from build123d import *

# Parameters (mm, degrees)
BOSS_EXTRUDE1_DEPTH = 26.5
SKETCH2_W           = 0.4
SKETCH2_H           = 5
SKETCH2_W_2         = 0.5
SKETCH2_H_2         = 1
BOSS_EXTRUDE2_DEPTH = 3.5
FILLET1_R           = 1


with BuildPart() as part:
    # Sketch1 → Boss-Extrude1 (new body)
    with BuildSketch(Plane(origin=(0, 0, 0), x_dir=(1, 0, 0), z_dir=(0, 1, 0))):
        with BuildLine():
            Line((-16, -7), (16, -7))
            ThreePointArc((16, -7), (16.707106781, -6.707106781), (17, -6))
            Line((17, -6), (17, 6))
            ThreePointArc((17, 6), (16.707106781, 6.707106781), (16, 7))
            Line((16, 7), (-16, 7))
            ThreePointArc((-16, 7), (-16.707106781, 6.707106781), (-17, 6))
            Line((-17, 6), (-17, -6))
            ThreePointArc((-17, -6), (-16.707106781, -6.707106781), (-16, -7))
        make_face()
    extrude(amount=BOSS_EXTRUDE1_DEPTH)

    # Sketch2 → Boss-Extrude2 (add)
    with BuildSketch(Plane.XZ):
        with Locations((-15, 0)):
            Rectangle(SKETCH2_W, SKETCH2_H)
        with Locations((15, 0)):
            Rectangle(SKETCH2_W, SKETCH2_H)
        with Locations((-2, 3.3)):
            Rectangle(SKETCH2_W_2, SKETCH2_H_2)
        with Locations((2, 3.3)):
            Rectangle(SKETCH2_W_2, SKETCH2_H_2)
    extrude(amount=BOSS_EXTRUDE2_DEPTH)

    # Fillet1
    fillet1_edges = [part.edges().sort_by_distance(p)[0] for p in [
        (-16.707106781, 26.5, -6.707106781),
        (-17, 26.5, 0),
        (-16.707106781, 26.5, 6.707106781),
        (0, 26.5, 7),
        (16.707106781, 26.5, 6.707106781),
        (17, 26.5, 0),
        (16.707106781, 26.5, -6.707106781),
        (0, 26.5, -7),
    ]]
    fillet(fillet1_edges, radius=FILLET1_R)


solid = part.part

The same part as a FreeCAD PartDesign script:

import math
import FreeCAD as App
import Part
import Sketcher
from FreeCAD import Vector
Q = App.Units.Quantity


def edges_at(feature, points):
    """Names of the edges that pass closest to the given points."""
    edges = feature.Shape.Edges
    near = lambda p: min(range(len(edges)), key=lambda i: edges[i].distToShape(Part.Vertex(*p))[0])
    return sorted({f"Edge{near(p) + 1}" for p in points})

doc = App.newDocument("Part")
params = doc.addObject("Spreadsheet::Sheet", "Params")
for row, (alias, value) in enumerate([
    ("sketch1_radius", "1 mm"),
    ("sketch1_width", "32 mm"),
    ("sketch1_height", "12 mm"),
    ("pad1_length", "26.5 mm"),
    ("sketch2_height", "5 mm"),
    ("sketch2_height2", "1 mm"),
    ("sketch2_width", "0.4 mm"),
    ("sketch2_width2", "0.5 mm"),
    ("pad2_length", "3.5 mm"),
    ("fillet_radius", "1 mm"),
], start=1):
    params.set(f"A{row}", alias)
    params.set(f"B{row}", "=" + value)
    params.setAlias(f"B{row}", alias)

body = doc.addObject("PartDesign::Body", "Body")

# Sketch on XZ plane
sketch1 = body.newObject("Sketcher::SketchObject", "Sketch")
sketch1.AttachmentSupport = (doc.getObject("XZ_Plane"), [""])
sketch1.MapMode = "FlatFace"
sketch1.addGeometry(Part.LineSegment(Vector(-16, 7, 0), Vector(16, 7, 0)), False)
sketch1.addGeometry(Part.ArcOfCircle(Part.Circle(Vector(16, 6, 0), Vector(0, 0, 1), 1), math.radians(0), math.radians(90)), False)
sketch1.addGeometry(Part.LineSegment(Vector(17, 6, 0), Vector(17, -6, 0)), False)
sketch1.addGeometry(Part.ArcOfCircle(Part.Circle(Vector(16, -6, 0), Vector(0, 0, 1), 1), math.radians(-90), math.radians(0)), False)
sketch1.addGeometry(Part.LineSegment(Vector(16, -7, 0), Vector(-16, -7, 0)), False)
sketch1.addGeometry(Part.ArcOfCircle(Part.Circle(Vector(-16, -6, 0), Vector(0, 0, 1), 1), math.radians(-180), math.radians(-90)), False)
sketch1.addGeometry(Part.LineSegment(Vector(-17, -6, 0), Vector(-17, 6, 0)), False)
sketch1.addGeometry(Part.ArcOfCircle(Part.Circle(Vector(-16, 6, 0), Vector(0, 0, 1), 1), math.radians(90), math.radians(180)), False)
sketch1.addConstraint(Sketcher.Constraint("Tangent", 0, 2, 1, 2))
sketch1.addConstraint(Sketcher.Constraint("Tangent", 1, 1, 2, 1))
sketch1.addConstraint(Sketcher.Constraint("Tangent", 2, 2, 3, 2))
sketch1.addConstraint(Sketcher.Constraint("Tangent", 3, 1, 4, 1))
sketch1.addConstraint(Sketcher.Constraint("Tangent", 4, 2, 5, 2))
sketch1.addConstraint(Sketcher.Constraint("Tangent", 5, 1, 6, 1))
sketch1.addConstraint(Sketcher.Constraint("Tangent", 6, 2, 7, 2))
sketch1.addConstraint(Sketcher.Constraint("Tangent", 7, 1, 0, 1))
sketch1.addConstraint(Sketcher.Constraint("Horizontal", 0))
sketch1.addConstraint(Sketcher.Constraint("Vertical", 2))
sketch1.addConstraint(Sketcher.Constraint("Horizontal", 4))
sketch1.addConstraint(Sketcher.Constraint("Vertical", 6))
sketch1.addConstraint(Sketcher.Constraint("Equal", 1, 3))
sketch1.addConstraint(Sketcher.Constraint("Equal", 3, 5))
sketch1.addConstraint(Sketcher.Constraint("Equal", 5, 7))
sketch1.addConstraint(Sketcher.Constraint("Symmetric", 1, 3, 5, 3, -1, 1))
sketch1.addConstraint(Sketcher.Constraint("Radius", 1, Q("1 mm")))
sketch1.addConstraint(Sketcher.Constraint("DistanceX", 0, 1, 0, 2, Q("32 mm")))
sketch1.addConstraint(Sketcher.Constraint("DistanceY", 2, 2, 2, 1, Q("12 mm")))
sketch1.setExpression("Constraints[16]", "Params.sketch1_radius")
sketch1.setExpression("Constraints[17]", "Params.sketch1_width")
sketch1.setExpression("Constraints[18]", "Params.sketch1_height")
pad1 = body.newObject("PartDesign::Pad", "Pad")
pad1.Profile = sketch1
pad1.setExpression("Length", "Params.pad1_length")
pad1.Reversed = True

# Sketch on XZ plane
sketch2 = body.newObject("Sketcher::SketchObject", "Sketch001")
sketch2.AttachmentSupport = (doc.getObject("XZ_Plane"), [""])
sketch2.MapMode = "FlatFace"
sketch2.addGeometry(Part.LineSegment(Vector(-15.2, 2.5, 0), Vector(-15.2, -2.5, 0)), False)
sketch2.addGeometry(Part.LineSegment(Vector(-15.2, -2.5, 0), Vector(-14.8, -2.5, 0)), False)
sketch2.addGeometry(Part.LineSegment(Vector(-14.8, -2.5, 0), Vector(-14.8, 2.5, 0)), False)
sketch2.addGeometry(Part.LineSegment(Vector(-14.8, 2.5, 0), Vector(-15.2, 2.5, 0)), False)
sketch2.addGeometry(Part.LineSegment(Vector(14.8, 2.5, 0), Vector(14.8, -2.5, 0)), False)
sketch2.addGeometry(Part.LineSegment(Vector(14.8, -2.5, 0), Vector(15.2, -2.5, 0)), False)
sketch2.addGeometry(Part.LineSegment(Vector(15.2, -2.5, 0), Vector(15.2, 2.5, 0)), False)
sketch2.addGeometry(Part.LineSegment(Vector(15.2, 2.5, 0), Vector(14.8, 2.5, 0)), False)
sketch2.addGeometry(Part.LineSegment(Vector(-2.25, 3.8, 0), Vector(-2.25, 2.8, 0)), False)
sketch2.addGeometry(Part.LineSegment(Vector(-2.25, 2.8, 0), Vector(-1.75, 2.8, 0)), False)
sketch2.addGeometry(Part.LineSegment(Vector(-1.75, 2.8, 0), Vector(-1.75, 3.8, 0)), False)
sketch2.addGeometry(Part.LineSegment(Vector(-1.75, 3.8, 0), Vector(-2.25, 3.8, 0)), False)
sketch2.addGeometry(Part.LineSegment(Vector(1.75, 3.8, 0), Vector(1.75, 2.8, 0)), False)
sketch2.addGeometry(Part.LineSegment(Vector(1.75, 2.8, 0), Vector(2.25, 2.8, 0)), False)
sketch2.addGeometry(Part.LineSegment(Vector(2.25, 2.8, 0), Vector(2.25, 3.8, 0)), False)
sketch2.addGeometry(Part.LineSegment(Vector(2.25, 3.8, 0), Vector(1.75, 3.8, 0)), False)
sketch2.addConstraint(Sketcher.Constraint("Coincident", 0, 2, 1, 1))
sketch2.addConstraint(Sketcher.Constraint("Coincident", 1, 2, 2, 1))
sketch2.addConstraint(Sketcher.Constraint("Coincident", 2, 2, 3, 1))
sketch2.addConstraint(Sketcher.Constraint("Coincident", 3, 2, 0, 1))
sketch2.addConstraint(Sketcher.Constraint("Coincident", 4, 2, 5, 1))
sketch2.addConstraint(Sketcher.Constraint("Coincident", 5, 2, 6, 1))
sketch2.addConstraint(Sketcher.Constraint("Coincident", 6, 2, 7, 1))
sketch2.addConstraint(Sketcher.Constraint("Coincident", 7, 2, 4, 1))
sketch2.addConstraint(Sketcher.Constraint("Coincident", 8, 2, 9, 1))
sketch2.addConstraint(Sketcher.Constraint("Coincident", 9, 2, 10, 1))
sketch2.addConstraint(Sketcher.Constraint("Coincident", 10, 2, 11, 1))
sketch2.addConstraint(Sketcher.Constraint("Coincident", 11, 2, 8, 1))
sketch2.addConstraint(Sketcher.Constraint("Coincident", 12, 2, 13, 1))
sketch2.addConstraint(Sketcher.Constraint("Coincident", 13, 2, 14, 1))
sketch2.addConstraint(Sketcher.Constraint("Coincident", 14, 2, 15, 1))
sketch2.addConstraint(Sketcher.Constraint("Coincident", 15, 2, 12, 1))
sketch2.addConstraint(Sketcher.Constraint("Vertical", 0))
sketch2.addConstraint(Sketcher.Constraint("Horizontal", 1))
sketch2.addConstraint(Sketcher.Constraint("Vertical", 2))
sketch2.addConstraint(Sketcher.Constraint("Horizontal", 3))
sketch2.addConstraint(Sketcher.Constraint("Vertical", 4))
sketch2.addConstraint(Sketcher.Constraint("Horizontal", 5))
sketch2.addConstraint(Sketcher.Constraint("Vertical", 6))
sketch2.addConstraint(Sketcher.Constraint("Horizontal", 7))
sketch2.addConstraint(Sketcher.Constraint("Vertical", 8))
sketch2.addConstraint(Sketcher.Constraint("Horizontal", 9))
sketch2.addConstraint(Sketcher.Constraint("Vertical", 10))
sketch2.addConstraint(Sketcher.Constraint("Horizontal", 11))
sketch2.addConstraint(Sketcher.Constraint("Vertical", 12))
sketch2.addConstraint(Sketcher.Constraint("Horizontal", 13))
sketch2.addConstraint(Sketcher.Constraint("Vertical", 14))
sketch2.addConstraint(Sketcher.Constraint("Horizontal", 15))
sketch2.addConstraint(Sketcher.Constraint("Symmetric", 2, 2, 4, 2, -1, 1))
sketch2.addConstraint(Sketcher.Constraint("Symmetric", 0, 2, 6, 2, -1, 1))
sketch2.addConstraint(Sketcher.Constraint("Symmetric", 9, 2, 12, 2, -2))
sketch2.addConstraint(Sketcher.Constraint("Symmetric", 11, 2, 14, 2, -2))
sketch2.addConstraint(Sketcher.Constraint("Horizontal", 1, 2, 4, 2))
sketch2.addConstraint(Sketcher.Constraint("DistanceY", 0, 2, 0, 1, Q("5 mm")))
sketch2.addConstraint(Sketcher.Constraint("DistanceY", 8, 2, 8, 1, Q("1 mm")))
sketch2.addConstraint(Sketcher.Constraint("DistanceX", 1, 1, 1, 2, Q("0.4 mm")))
sketch2.addConstraint(Sketcher.Constraint("DistanceX", 9, 1, 9, 2, Q("0.5 mm")))
sketch2.addConstraint(Sketcher.Constraint("DistanceX", 0, 2, 4, 2, Q("30 mm")))
sketch2.addConstraint(Sketcher.Constraint("DistanceX", 8, 2, 12, 2, Q("4 mm")))
sketch2.addConstraint(Sketcher.Constraint("DistanceY", -1, 1, 8, 2, Q("2.8 mm")))
sketch2.setExpression("Constraints[37]", "Params.sketch2_height")
sketch2.setExpression("Constraints[38]", "Params.sketch2_height2")
sketch2.setExpression("Constraints[39]", "Params.sketch2_width")
sketch2.setExpression("Constraints[40]", "Params.sketch2_width2")
pad2 = body.newObject("PartDesign::Pad", "Pad001")
pad2.Profile = sketch2
pad2.setExpression("Length", "Params.pad2_length")
doc.recompute()

fillet = body.newObject("PartDesign::Fillet", "Fillet")
fillet.Base = (pad2, edges_at(pad2, [
    (-16.707, 26.5, -6.707),
    (-17, 26.5, 0),
    (-16.707, 26.5, 6.707),
    (0, 26.5, 7),
    (16.707, 26.5, 6.707),
    (17, 26.5, 0),
    (16.707, 26.5, -6.707),
    (0, 26.5, -7),
]))
fillet.setExpression("Radius", "Params.fillet_radius")

doc.recompute()
